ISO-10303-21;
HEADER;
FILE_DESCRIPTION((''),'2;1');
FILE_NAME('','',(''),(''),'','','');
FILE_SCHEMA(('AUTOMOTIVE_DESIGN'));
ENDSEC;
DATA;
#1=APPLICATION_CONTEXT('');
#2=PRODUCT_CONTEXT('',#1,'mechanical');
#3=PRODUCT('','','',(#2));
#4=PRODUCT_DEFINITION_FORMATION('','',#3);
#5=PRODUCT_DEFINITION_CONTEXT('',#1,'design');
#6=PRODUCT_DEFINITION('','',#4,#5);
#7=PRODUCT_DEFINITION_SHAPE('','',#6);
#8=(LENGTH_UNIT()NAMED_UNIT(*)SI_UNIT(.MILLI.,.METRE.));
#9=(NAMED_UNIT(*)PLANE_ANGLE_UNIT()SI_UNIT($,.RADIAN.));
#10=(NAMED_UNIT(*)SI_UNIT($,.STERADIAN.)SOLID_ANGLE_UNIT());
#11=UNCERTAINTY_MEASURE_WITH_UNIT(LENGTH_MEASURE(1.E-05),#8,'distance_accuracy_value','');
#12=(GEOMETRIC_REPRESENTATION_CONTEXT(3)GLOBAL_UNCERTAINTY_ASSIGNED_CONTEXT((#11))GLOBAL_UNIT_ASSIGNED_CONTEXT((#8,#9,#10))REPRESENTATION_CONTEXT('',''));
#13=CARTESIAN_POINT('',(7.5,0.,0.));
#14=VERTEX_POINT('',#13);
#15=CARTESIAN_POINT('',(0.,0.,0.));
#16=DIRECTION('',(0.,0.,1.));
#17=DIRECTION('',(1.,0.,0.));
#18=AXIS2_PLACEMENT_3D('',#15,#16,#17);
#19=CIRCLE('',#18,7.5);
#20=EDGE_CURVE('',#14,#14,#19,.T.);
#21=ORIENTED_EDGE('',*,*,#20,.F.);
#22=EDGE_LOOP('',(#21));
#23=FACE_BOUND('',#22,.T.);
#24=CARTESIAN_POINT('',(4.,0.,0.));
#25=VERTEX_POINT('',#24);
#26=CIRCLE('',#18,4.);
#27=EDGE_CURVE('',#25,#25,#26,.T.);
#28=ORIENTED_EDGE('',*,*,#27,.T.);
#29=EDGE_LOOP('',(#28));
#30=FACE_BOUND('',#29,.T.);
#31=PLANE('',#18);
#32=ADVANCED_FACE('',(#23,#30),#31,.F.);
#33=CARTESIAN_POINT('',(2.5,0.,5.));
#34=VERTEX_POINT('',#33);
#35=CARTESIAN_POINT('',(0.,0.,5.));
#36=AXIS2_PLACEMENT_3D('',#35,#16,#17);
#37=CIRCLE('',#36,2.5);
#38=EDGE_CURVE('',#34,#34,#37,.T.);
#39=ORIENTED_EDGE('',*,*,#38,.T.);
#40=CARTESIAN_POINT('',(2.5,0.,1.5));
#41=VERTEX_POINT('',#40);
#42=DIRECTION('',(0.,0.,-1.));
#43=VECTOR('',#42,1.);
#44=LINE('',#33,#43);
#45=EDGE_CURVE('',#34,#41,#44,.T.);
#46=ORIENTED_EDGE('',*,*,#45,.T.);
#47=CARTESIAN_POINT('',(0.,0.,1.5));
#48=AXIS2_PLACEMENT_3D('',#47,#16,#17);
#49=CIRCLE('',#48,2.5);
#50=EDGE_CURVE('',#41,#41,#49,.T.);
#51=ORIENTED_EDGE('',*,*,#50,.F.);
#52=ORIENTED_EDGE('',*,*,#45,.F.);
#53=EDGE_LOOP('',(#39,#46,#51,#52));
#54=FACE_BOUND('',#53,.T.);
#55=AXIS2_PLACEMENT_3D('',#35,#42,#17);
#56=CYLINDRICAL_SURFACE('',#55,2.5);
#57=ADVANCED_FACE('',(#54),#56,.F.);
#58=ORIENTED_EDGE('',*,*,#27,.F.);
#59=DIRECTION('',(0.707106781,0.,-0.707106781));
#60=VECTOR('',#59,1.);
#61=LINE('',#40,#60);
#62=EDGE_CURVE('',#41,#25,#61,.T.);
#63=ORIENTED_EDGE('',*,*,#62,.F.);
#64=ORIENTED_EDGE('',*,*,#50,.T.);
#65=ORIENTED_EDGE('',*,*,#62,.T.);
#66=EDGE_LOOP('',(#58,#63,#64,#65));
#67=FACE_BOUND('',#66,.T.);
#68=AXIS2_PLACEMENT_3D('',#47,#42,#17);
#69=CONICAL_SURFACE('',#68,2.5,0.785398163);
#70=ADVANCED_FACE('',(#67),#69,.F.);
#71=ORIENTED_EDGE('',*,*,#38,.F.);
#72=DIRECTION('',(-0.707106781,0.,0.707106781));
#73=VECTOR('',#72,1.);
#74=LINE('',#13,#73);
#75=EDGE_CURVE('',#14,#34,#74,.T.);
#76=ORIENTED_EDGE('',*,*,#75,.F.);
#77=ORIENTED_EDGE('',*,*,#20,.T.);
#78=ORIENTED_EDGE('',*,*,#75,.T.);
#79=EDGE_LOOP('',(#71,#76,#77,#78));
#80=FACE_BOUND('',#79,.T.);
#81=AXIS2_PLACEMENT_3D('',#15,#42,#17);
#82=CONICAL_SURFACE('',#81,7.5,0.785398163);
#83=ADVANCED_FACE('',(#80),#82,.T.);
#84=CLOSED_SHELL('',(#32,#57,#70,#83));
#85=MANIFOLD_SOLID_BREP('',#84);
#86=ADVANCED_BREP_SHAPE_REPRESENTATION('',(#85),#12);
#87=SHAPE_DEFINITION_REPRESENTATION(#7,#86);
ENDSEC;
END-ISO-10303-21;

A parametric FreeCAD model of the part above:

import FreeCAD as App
import Part
import Sketcher


def edges_at(feature, points):
    """Names of the edges that pass closest to the given points."""
    edges = feature.Shape.Edges
    near = lambda p: min(range(len(edges)), key=lambda i: edges[i].distToShape(Part.Vertex(*p))[0])
    return sorted({f"Edge{near(p) + 1}" for p in points})

doc = App.newDocument("Part")
body = doc.addObject("PartDesign::Body", "Body")

# Sketch on XZ plane
sketch1 = doc.addObject("Sketcher::SketchObject", "Sketch")
body.addObject(sketch1)
sketch1.AttachmentSupport = (doc.XZ_Plane, [""])
sketch1.MapMode = "FlatFace"
sketch1.addGeometry([
    Part.LineSegment(App.Vector(2, 5, 0), App.Vector(2, 0, 0)),
    Part.LineSegment(App.Vector(2, 0, 0), App.Vector(8, 0, 0)),
    Part.LineSegment(App.Vector(8, 0, 0), App.Vector(2, 5, 0)),
], False)
sketch1.addConstraint([
    Sketcher.Constraint("Coincident", 0, 2, 1, 1),
    Sketcher.Constraint("Coincident", 1, 2, 2, 1),
    Sketcher.Constraint("Coincident", 2, 2, 0, 1),
    Sketcher.Constraint("Vertical", 0),
    Sketcher.Constraint("Horizontal", 1),
    Sketcher.Constraint("PointOnObject", 0, 2, -1),
    Sketcher.Constraint("Equal", 1, 0),
    Sketcher.Constraint("DistanceX", 1, 1, 1, 2, 5.0),
    Sketcher.Constraint("DistanceX", -1, 1, 0, 2, 2.5),
])
revolution = doc.addObject("PartDesign::Revolution", "Revolution")
body.addObject(revolution)
revolution.Profile = sketch1
revolution.ReferenceAxis = (sketch1, ["V_Axis"])
revolution.Angle = 360
doc.recompute()

chamfer = doc.addObject("PartDesign::Chamfer", "Chamfer")
body.addObject(chamfer)
chamfer.Base = (revolution, edges_at(revolution, [(-2.5, 0, 0)]))
chamfer.Size = 1.5

doc.recompute()
